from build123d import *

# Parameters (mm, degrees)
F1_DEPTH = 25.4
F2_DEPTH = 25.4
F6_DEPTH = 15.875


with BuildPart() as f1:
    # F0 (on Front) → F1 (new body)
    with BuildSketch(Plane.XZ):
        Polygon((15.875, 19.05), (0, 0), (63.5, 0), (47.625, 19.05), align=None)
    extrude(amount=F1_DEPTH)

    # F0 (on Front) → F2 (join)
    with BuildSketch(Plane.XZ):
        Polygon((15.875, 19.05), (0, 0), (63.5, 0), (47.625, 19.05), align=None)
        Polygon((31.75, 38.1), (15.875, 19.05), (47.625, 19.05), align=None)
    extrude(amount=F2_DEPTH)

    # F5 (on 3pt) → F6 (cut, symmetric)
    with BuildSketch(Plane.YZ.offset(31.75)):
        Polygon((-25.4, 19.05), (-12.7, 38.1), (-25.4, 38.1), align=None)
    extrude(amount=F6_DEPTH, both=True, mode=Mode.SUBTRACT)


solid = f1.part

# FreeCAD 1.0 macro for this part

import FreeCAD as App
import Part
import Sketcher
from FreeCAD import Vector
Q = App.Units.Quantity

doc = App.newDocument("Part")
body = doc.addObject("PartDesign::Body", "Body")

# Sketch on XZ plane
sketch1 = body.newObject("Sketcher::SketchObject", "Sketch")
sketch1.AttachmentSupport = (doc.getObject("XZ_Plane"), [""])
sketch1.MapMode = "FlatFace"
sketch1.addGeometry(Part.LineSegment(Vector(16, 19, 0), Vector(0, 0, 0)), False)
sketch1.addGeometry(Part.LineSegment(Vector(0, 0, 0), Vector(64, 0, 0)), False)
sketch1.addGeometry(Part.LineSegment(Vector(64, 0, 0), Vector(48, 19, 0)), False)
sketch1.addGeometry(Part.LineSegment(Vector(48, 19, 0), Vector(16, 19, 0)), False)
sketch1.addConstraint(Sketcher.Constraint("Coincident", 0, 2, 1, 1))
sketch1.addConstraint(Sketcher.Constraint("Coincident", 1, 2, 2, 1))
sketch1.addConstraint(Sketcher.Constraint("Coincident", 2, 2, 3, 1))
sketch1.addConstraint(Sketcher.Constraint("Coincident", 3, 2, 0, 1))
sketch1.addConstraint(Sketcher.Constraint("Horizontal", 1))
sketch1.addConstraint(Sketcher.Constraint("Horizontal", 3))
sketch1.addConstraint(Sketcher.Constraint("Coincident", 0, 2, -1, 1))
sketch1.addConstraint(Sketcher.Constraint("Equal", 0, 2))
sketch1.addConstraint(Sketcher.Constraint("DistanceX", 1, 1, 1, 2, Q("2.5 in")))
sketch1.addConstraint(Sketcher.Constraint("DistanceX", 3, 2, 3, 1, Q("1.25 in")))
sketch1.addConstraint(Sketcher.Constraint("DistanceY", -1, 1, 2, 2, Q("0.75 in")))
pad1 = body.newObject("PartDesign::Pad", "Pad")
pad1.Profile = sketch1
pad1.Length = Q("1 in")

# Sketch on XZ plane
sketch2 = body.newObject("Sketcher::SketchObject", "Sketch001")
sketch2.AttachmentSupport = (doc.getObject("XZ_Plane"), [""])
sketch2.MapMode = "FlatFace"
sketch2.addGeometry(Part.LineSegment(Vector(0, 0, 0), Vector(64, 0, 0)), False)
sketch2.addGeometry(Part.LineSegment(Vector(64, 0, 0), Vector(32, 38, 0)), False)
sketch2.addGeometry(Part.LineSegment(Vector(32, 38, 0), Vector(0, 0, 0)), False)
sketch2.addConstraint(Sketcher.Constraint("Coincident", 0, 2, 1, 1))
sketch2.addConstraint(Sketcher.Constraint("Coincident", 1, 2, 2, 1))
sketch2.addConstraint(Sketcher.Constraint("Coincident", 2, 2, 0, 1))
sketch2.addConstraint(Sketcher.Constraint("Horizontal", 0))
sketch2.addConstraint(Sketcher.Constraint("Coincident", 2, 2, -1, 1))
sketch2.addConstraint(Sketcher.Constraint("Equal", 1, 2))
sketch2.addConstraint(Sketcher.Constraint("DistanceX", 0, 1, 0, 2, Q("2.5 in")))
sketch2.addConstraint(Sketcher.Constraint("DistanceY", -1, 1, 1, 2, Q("1.5 in")))
pad2 = body.newObject("PartDesign::Pad", "Pad001")
pad2.Profile = sketch2
pad2.Length = Q("1 in")

# Sketch on YZ plane
sketch3 = body.newObject("Sketcher::SketchObject", "Sketch002")
sketch3.AttachmentSupport = (doc.getObject("YZ_Plane"), [""])
sketch3.MapMode = "FlatFace"
sketch3.AttachmentOffset = App.Placement(Vector(0, 0, 1.25 * 25.4), App.Rotation())
sketch3.addGeometry(Part.LineSegment(Vector(-25, 19, 0), Vector(-13, 38, 0)), False)
sketch3.addGeometry(Part.LineSegment(Vector(-13, 38, 0), Vector(-25, 38, 0)), False)
sketch3.addGeometry(Part.LineSegment(Vector(-25, 38, 0), Vector(-25, 19, 0)), False)
sketch3.addConstraint(Sketcher.Constraint("Coincident", 0, 2, 1, 1))
sketch3.addConstraint(Sketcher.Constraint("Coincident", 1, 2, 2, 1))
sketch3.addConstraint(Sketcher.Constraint("Coincident", 2, 2, 0, 1))
sketch3.addConstraint(Sketcher.Constraint("Horizontal", 1))
sketch3.addConstraint(Sketcher.Constraint("Vertical", 2))
sketch3.addConstraint(Sketcher.Constraint("DistanceX", 1, 2, 1, 1, Q("0.5 in")))
sketch3.addConstraint(Sketcher.Constraint("DistanceX", 1, 2, -1, 1, Q("1 in")))
sketch3.addConstraint(Sketcher.Constraint("DistanceY", 2, 2, 2, 1, Q("0.75 in")))
sketch3.addConstraint(Sketcher.Constraint("DistanceY", -1, 1, 0, 2, Q("1.5 in")))
pocket1 = body.newObject("PartDesign::Pocket", "Pocket")
pocket1.Profile = sketch3
pocket1.Length = Q("1.25 in")
pocket1.Midplane = True

doc.recompute()
